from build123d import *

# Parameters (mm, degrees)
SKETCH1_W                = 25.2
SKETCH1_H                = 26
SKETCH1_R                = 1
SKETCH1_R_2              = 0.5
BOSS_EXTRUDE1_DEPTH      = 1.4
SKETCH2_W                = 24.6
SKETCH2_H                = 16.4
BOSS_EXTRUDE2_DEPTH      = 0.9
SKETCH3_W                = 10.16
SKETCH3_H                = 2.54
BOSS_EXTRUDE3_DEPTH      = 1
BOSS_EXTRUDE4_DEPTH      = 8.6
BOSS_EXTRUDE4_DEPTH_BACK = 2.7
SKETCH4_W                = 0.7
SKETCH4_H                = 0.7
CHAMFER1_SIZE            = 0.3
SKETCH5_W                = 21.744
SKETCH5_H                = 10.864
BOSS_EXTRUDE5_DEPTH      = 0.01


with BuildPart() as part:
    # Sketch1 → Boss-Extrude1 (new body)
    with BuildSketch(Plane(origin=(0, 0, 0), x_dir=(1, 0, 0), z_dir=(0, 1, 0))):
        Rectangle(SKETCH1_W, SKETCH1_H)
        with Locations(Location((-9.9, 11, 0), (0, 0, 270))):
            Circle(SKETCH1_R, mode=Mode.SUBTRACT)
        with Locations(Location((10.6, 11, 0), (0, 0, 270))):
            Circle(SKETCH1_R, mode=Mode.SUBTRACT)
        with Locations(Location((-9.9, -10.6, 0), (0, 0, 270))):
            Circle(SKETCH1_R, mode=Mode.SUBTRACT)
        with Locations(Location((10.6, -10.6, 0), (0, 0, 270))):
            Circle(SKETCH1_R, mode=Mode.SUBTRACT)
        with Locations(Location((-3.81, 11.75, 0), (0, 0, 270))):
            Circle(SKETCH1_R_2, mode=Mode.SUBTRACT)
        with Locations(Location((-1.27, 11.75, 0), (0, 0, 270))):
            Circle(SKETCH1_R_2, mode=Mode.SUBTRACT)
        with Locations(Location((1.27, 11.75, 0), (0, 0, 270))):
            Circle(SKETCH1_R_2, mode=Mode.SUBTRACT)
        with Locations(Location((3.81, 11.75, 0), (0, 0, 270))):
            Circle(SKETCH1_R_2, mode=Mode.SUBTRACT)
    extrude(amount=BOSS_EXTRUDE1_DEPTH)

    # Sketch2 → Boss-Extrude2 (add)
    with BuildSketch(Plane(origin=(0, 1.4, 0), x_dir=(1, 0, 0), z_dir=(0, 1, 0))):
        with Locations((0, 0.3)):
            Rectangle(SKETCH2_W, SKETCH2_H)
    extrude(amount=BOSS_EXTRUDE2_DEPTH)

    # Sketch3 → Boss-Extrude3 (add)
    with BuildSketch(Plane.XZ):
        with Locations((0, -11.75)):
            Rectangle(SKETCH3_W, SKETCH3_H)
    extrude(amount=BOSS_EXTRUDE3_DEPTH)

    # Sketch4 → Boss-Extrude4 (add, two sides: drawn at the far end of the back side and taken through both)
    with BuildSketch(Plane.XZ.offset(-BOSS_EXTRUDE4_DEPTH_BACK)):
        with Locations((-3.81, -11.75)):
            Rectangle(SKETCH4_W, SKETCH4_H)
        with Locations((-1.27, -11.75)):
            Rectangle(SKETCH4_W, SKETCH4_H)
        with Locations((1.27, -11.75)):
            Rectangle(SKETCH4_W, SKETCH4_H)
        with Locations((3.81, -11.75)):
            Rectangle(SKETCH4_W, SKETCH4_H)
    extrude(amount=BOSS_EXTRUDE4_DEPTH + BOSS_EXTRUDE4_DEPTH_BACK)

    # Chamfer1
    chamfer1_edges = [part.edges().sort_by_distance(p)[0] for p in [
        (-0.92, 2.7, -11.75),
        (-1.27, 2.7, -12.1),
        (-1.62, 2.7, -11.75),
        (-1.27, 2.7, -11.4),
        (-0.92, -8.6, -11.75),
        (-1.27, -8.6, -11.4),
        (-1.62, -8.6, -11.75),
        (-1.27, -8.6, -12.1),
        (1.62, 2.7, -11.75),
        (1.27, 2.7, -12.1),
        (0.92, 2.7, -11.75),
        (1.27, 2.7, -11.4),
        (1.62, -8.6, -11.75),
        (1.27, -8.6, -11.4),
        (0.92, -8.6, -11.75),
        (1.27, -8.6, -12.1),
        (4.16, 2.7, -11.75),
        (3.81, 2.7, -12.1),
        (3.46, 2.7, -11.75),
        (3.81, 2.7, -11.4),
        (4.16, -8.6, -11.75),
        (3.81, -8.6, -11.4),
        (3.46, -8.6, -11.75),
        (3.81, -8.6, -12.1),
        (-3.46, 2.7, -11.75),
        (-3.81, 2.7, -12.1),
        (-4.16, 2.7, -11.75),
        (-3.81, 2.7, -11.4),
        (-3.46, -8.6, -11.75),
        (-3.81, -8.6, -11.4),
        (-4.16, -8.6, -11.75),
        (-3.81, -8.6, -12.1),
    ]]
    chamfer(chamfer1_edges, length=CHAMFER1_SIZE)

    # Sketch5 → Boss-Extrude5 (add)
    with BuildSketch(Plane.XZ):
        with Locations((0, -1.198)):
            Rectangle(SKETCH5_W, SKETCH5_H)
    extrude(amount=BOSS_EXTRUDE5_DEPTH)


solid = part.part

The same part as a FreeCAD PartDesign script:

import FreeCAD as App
import Part
import Sketcher
from FreeCAD import Vector


def edges_at(feature, points):
    """Names of the edges that pass closest to the given points."""
    edges = feature.Shape.Edges
    near = lambda p: min(range(len(edges)), key=lambda i: edges[i].distToShape(Part.Vertex(*p))[0])
    return sorted({f"Edge{near(p) + 1}" for p in points})


def add_polygon(sketch, points):
    """Adds a closed chain of lines whose ends are joined by coincident constraints."""
    first, n = sketch.GeometryCount, len(points)
    for a, b in zip(points, points[1:] + points[:1]):
        sketch.addGeometry(Part.LineSegment(App.Vector(*a, 0), App.Vector(*b, 0)), False)
    for i in range(n):
        sketch.addConstraint(Sketcher.Constraint("Coincident", first + i, 2, first + (i + 1) % n, 1))

doc = App.newDocument("Part")
body = doc.addObject("PartDesign::Body", "Body")

sketch1 = body.newObject("Sketcher::SketchObject", "Sketch")
sketch1.AttachmentSupport = (doc.getObject("XZ_Plane"), [""])
sketch1.MapMode = "FlatFace"
add_polygon(sketch1, [(-12.6, -13), (-12.6, 13), (12.6, 13), (12.6, -13)])
sketch1.addGeometry(Part.Circle(Vector(-9.9, 10.6, 0), Vector(0, 0, 1), 1), False)
sketch1.addGeometry(Part.Circle(Vector(10.6, 10.6, 0), Vector(0, 0, 1), 1), False)
sketch1.addGeometry(Part.Circle(Vector(-9.9, -11, 0), Vector(0, 0, 1), 1), False)
sketch1.addGeometry(Part.Circle(Vector(-3.8, -11.8, 0), Vector(0, 0, 1), 0.5), False)
sketch1.addGeometry(Part.Circle(Vector(-1.3, -11.8, 0), Vector(0, 0, 1), 0.5), False)
sketch1.addGeometry(Part.Circle(Vector(1.3, -11.8, 0), Vector(0, 0, 1), 0.5), False)
sketch1.addGeometry(Part.Circle(Vector(3.8, -11.8, 0), Vector(0, 0, 1), 0.5), False)
sketch1.addGeometry(Part.Circle(Vector(10.6, -11, 0), Vector(0, 0, 1), 1), False)
sketch1.addConstraint([
    Sketcher.Constraint("Vertical", 0),
    Sketcher.Constraint("Horizontal", 1),
    Sketcher.Constraint("Vertical", 2),
    Sketcher.Constraint("Horizontal", 3),
    Sketcher.Constraint("Equal", 4, 5),
    Sketcher.Constraint("Equal", 5, 6),
    Sketcher.Constraint("Equal", 7, 8),
    Sketcher.Constraint("Equal", 8, 9),
    Sketcher.Constraint("Equal", 9, 10),
    Sketcher.Constraint("Equal", 6, 11),
    Sketcher.Constraint("Symmetric", 0, 2, 2, 2, -1, 1),
    Sketcher.Constraint("Symmetric", 8, 3, 9, 3, -2),
    Sketcher.Constraint("Symmetric", 7, 3, 10, 3, -2),
    Sketcher.Constraint("Horizontal", 4, 3, 5, 3),
    Sketcher.Constraint("Horizontal", 7, 3, 8, 3),
    Sketcher.Constraint("Horizontal", 6, 3, 11, 3),
    Sketcher.Constraint("Vertical", 4, 3, 6, 3),
    Sketcher.Constraint("Vertical", 5, 3, 11, 3),
    Sketcher.Constraint("Diameter", 4, 2.0),
    Sketcher.Constraint("Diameter", 7, 1.0),
    Sketcher.Constraint("DistanceY", 0, 1, 0, 2, 26.0),
    Sketcher.Constraint("DistanceX", 1, 1, 1, 2, 25.2),
    Sketcher.Constraint("DistanceY", 6, 3, -1, 1, 11.0),
    Sketcher.Constraint("DistanceX", 5, 3, 1, 2, 2.0),
    Sketcher.Constraint("DistanceX", 4, 3, -1, 1, 9.9),
    Sketcher.Constraint("DistanceY", -1, 1, 4, 3, 10.6),
    Sketcher.Constraint("DistanceX", 7, 3, -1, 1, 3.81),
    Sketcher.Constraint("DistanceY", 7, 3, -1, 1, 11.75),
    Sketcher.Constraint("DistanceX", 8, 3, -1, 1, 1.27),
])
pad1 = body.newObject("PartDesign::Pad", "Pad")
pad1.Profile = sketch1
pad1.Length = 1.4
pad1.Reversed = True

sketch2 = body.newObject("Sketcher::SketchObject", "Sketch001")
sketch2.AttachmentSupport = (doc.getObject("XZ_Plane"), [""])
sketch2.MapMode = "FlatFace"
sketch2.AttachmentOffset = App.Placement(Vector(0, 0, -1.4), App.Rotation())
add_polygon(sketch2, [(-12, -8), (-12, 8), (12, 8), (12, -8)])
sketch2.addConstraint([
    Sketcher.Constraint("Vertical", 0),
    Sketcher.Constraint("Horizontal", 1),
    Sketcher.Constraint("Vertical", 2),
    Sketcher.Constraint("Horizontal", 3),
    Sketcher.Constraint("DistanceX", 1, 1, 1, 2, 24.6),
    Sketcher.Constraint("DistanceY", 0, 1, 0, 2, 16.4),
    Sketcher.Constraint("DistanceX", 0, 2, -1, 1, 12.3),
    Sketcher.Constraint("DistanceY", -1, 1, 0, 2, 7.9),
])
pad2 = body.newObject("PartDesign::Pad", "Pad001")
pad2.Profile = sketch2
pad2.Length = 0.9
pad2.Reversed = True

sketch3 = body.newObject("Sketcher::SketchObject", "Sketch002")
sketch3.AttachmentSupport = (doc.getObject("XZ_Plane"), [""])
sketch3.MapMode = "FlatFace"
add_polygon(sketch3, [(-5.1, -10.5), (-5.1, -13), (5.1, -13), (5.1, -10.5)])
sketch3.addConstraint([
    Sketcher.Constraint("Vertical", 0),
    Sketcher.Constraint("Horizontal", 1),
    Sketcher.Constraint("Vertical", 2),
    Sketcher.Constraint("Horizontal", 3),
    Sketcher.Constraint("DistanceX", 1, 1, 1, 2, 10.16),
    Sketcher.Constraint("DistanceY", 0, 2, 0, 1, 2.54),
    Sketcher.Constraint("DistanceX", 0, 2, -1, 1, 5.08),
    Sketcher.Constraint("DistanceY", 0, 2, -1, 1, 13.02),
])
pad3 = body.newObject("PartDesign::Pad", "Pad002")
pad3.Profile = sketch3
pad3.Length = 1

sketch4 = body.newObject("Sketcher::SketchObject", "Sketch003")
sketch4.AttachmentSupport = (doc.getObject("XZ_Plane"), [""])
sketch4.MapMode = "FlatFace"
add_polygon(sketch4, [(-4.2, -11.4), (-4.2, -12.1), (-3.5, -12.1), (-3.5, -11.4)])
add_polygon(sketch4, [(-1.6, -11.4), (-1.6, -12.1), (-0.9, -12.1), (-0.9, -11.4)])
add_polygon(sketch4, [(0.9, -11.4), (0.9, -12.1), (1.6, -12.1), (1.6, -11.4)])
add_polygon(sketch4, [(3.5, -11.4), (3.5, -12.1), (4.2, -12.1), (4.2, -11.4)])
sketch4.addConstraint([
    Sketcher.Constraint("Vertical", 0),
    Sketcher.Constraint("Horizontal", 1),
    Sketcher.Constraint("Vertical", 2),
    Sketcher.Constraint("Horizontal", 3),
    Sketcher.Constraint("Vertical", 4),
    Sketcher.Constraint("Horizontal", 5),
    Sketcher.Constraint("Vertical", 6),
    Sketcher.Constraint("Horizontal", 7),
    Sketcher.Constraint("Vertical", 8),
    Sketcher.Constraint("Horizontal", 9),
    Sketcher.Constraint("Vertical", 10),
    Sketcher.Constraint("Horizontal", 11),
    Sketcher.Constraint("Vertical", 12),
    Sketcher.Constraint("Horizontal", 13),
    Sketcher.Constraint("Vertical", 14),
    Sketcher.Constraint("Horizontal", 15),
    Sketcher.Constraint("Symmetric", 5, 2, 8, 2, -2),
    Sketcher.Constraint("Symmetric", 7, 2, 10, 2, -2),
    Sketcher.Constraint("Symmetric", 1, 2, 12, 2, -2),
    Sketcher.Constraint("Symmetric", 3, 2, 14, 2, -2),
    Sketcher.Constraint("Horizontal", 1, 2, 4, 2),
    Sketcher.Constraint("Horizontal", 3, 2, 6, 2),
    Sketcher.Constraint("Equal", 3, 5),
    Sketcher.Constraint("Equal", 15, 0),
    Sketcher.Constraint("DistanceX", 1, 1, 1, 2, 0.7),
    Sketcher.Constraint("DistanceY", 0, 2, -1, 1, 12.1),
    Sketcher.Constraint("DistanceX", 0, 2, -1, 1, 4.16),
    Sketcher.Constraint("DistanceX", 4, 2, -1, 1, 1.62),
])
pad4 = body.newObject("PartDesign::Pad", "Pad003")
pad4.Profile = sketch4
pad4.Type = "TwoLengths"
pad4.Length = 8.6
pad4.Length2 = 2.7
doc.recompute()

chamfer = body.newObject("PartDesign::Chamfer", "Chamfer")
chamfer.Base = (pad4, edges_at(pad4, [
    (-0.92, 2.7, -11.75),
    (-1.27, 2.7, -12.1),
    (-1.62, 2.7, -11.75),
    (-1.27, 2.7, -11.4),
    (-0.92, -8.6, -11.75),
    (-1.27, -8.6, -11.4),
    (-1.62, -8.6, -11.75),
    (-1.27, -8.6, -12.1),
    (1.62, 2.7, -11.75),
    (1.27, 2.7, -12.1),
    (0.92, 2.7, -11.75),
    (1.27, 2.7, -11.4),
    (1.62, -8.6, -11.75),
    (1.27, -8.6, -11.4),
    (0.92, -8.6, -11.75),
    (1.27, -8.6, -12.1),
    (4.16, 2.7, -11.75),
    (3.81, 2.7, -12.1),
    (3.46, 2.7, -11.75),
    (3.81, 2.7, -11.4),
    (4.16, -8.6, -11.75),
    (3.81, -8.6, -11.4),
    (3.46, -8.6, -11.75),
    (3.81, -8.6, -12.1),
    (-3.46, 2.7, -11.75),
    (-3.81, 2.7, -12.1),
    (-4.16, 2.7, -11.75),
    (-3.81, 2.7, -11.4),
    (-3.46, -8.6, -11.75),
    (-3.81, -8.6, -11.4),
    (-4.16, -8.6, -11.75),
    (-3.81, -8.6, -12.1),
]))
chamfer.Size = 0.3

sketch5 = body.newObject("Sketcher::SketchObject", "Sketch004")
sketch5.AttachmentSupport = (doc.getObject("XZ_Plane"), [""])
sketch5.MapMode = "FlatFace"
add_polygon(sketch5, [(-11, 4), (-11, -7), (11, -7), (11, 4)])
sketch5.addConstraint([
    Sketcher.Constraint("Vertical", 0),
    Sketcher.Constraint("Horizontal", 1),
    Sketcher.Constraint("Vertical", 2),
    Sketcher.Constraint("Horizontal", 3),
    Sketcher.Constraint("DistanceX", 1, 1, 1, 2, 21.744),
    Sketcher.Constraint("DistanceY", 0, 2, 0, 1, 10.864),
    Sketcher.Constraint("DistanceY", 0, 2, -1, 1, 6.63),
    Sketcher.Constraint("DistanceX", 0, 2, -1, 1, 10.872),
])
pad5 = body.newObject("PartDesign::Pad", "Pad004")
pad5.Profile = sketch5
pad5.Length = 0.01

doc.recompute()
